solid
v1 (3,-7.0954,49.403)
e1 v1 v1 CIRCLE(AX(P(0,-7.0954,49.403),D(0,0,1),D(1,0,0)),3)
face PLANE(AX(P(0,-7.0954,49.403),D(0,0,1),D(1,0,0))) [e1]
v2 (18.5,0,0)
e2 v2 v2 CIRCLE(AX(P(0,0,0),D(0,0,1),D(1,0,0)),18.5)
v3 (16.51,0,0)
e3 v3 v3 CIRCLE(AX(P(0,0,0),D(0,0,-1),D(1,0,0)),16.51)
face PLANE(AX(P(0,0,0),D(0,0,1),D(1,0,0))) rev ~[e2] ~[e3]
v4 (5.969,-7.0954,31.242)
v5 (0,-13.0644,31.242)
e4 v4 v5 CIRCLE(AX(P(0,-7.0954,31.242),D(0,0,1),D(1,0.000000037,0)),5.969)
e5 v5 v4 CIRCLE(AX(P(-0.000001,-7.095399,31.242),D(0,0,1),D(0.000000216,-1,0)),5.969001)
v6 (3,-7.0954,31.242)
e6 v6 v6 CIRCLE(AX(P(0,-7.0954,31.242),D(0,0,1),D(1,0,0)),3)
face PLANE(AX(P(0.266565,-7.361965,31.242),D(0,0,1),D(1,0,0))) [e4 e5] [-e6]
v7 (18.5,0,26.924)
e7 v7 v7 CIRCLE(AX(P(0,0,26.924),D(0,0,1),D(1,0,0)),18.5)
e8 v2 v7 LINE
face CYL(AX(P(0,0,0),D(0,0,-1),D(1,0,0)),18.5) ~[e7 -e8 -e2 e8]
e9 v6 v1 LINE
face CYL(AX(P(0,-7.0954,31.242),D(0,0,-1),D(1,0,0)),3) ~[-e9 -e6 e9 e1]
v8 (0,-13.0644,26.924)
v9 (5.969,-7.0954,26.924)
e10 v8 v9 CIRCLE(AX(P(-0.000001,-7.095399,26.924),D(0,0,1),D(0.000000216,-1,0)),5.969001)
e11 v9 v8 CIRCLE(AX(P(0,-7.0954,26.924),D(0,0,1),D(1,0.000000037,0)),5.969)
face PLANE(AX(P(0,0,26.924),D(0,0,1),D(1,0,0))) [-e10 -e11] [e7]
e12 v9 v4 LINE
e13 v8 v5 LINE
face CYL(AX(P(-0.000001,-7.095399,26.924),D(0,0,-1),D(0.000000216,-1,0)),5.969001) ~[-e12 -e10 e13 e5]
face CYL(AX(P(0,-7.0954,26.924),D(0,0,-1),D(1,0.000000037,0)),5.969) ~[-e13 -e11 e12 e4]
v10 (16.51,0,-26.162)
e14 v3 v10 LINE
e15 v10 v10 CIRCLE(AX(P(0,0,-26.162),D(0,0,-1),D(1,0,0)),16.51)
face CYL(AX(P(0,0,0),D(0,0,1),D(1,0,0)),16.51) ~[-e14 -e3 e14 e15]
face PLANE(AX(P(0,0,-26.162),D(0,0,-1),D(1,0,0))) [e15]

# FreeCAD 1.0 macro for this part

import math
import FreeCAD as App
import Part
import Sketcher
Q = App.Units.Quantity

doc = App.newDocument("Part")
params = doc.addObject("Spreadsheet::Sheet", "Params")
for row, (alias, value) in enumerate([
    ("pad1_length", "1.06 in"),
    ("sketch2_diameter", "1.3 in"),
    ("pad2_length", "1.03 in"),
    ("sketch3_radius", "0.235 in"),
    ("pad3_length", "0.17 in"),
    ("pad4_length", "0.715 in"),
], start=1):
    params.set(f"A{row}", alias)
    params.set(f"B{row}", "=" + value)
    params.setAlias(f"B{row}", alias)

body = doc.addObject("PartDesign::Body", "Body")

sketch1 = body.newObject("Sketcher::SketchObject", "Sketch")
sketch1.AttachmentSupport = (doc.getObject("XY_Plane"), [""])
sketch1.MapMode = "FlatFace"
sketch1.addGeometry(Part.Circle(App.Vector(0, 0, 0), App.Vector(0, 0, 1), 18), False)
sketch1.addConstraint([
    Sketcher.Constraint("Coincident", 0, 3, -1, 1),
    Sketcher.Constraint("Diameter", 0, Q("37 mm")),
])
pad1 = body.newObject("PartDesign::Pad", "Pad")
pad1.Profile = sketch1
pad1.setExpression("Length", "Params.pad1_length")

sketch2 = body.newObject("Sketcher::SketchObject", "Sketch001")
sketch2.AttachmentSupport = (doc.getObject("XY_Plane"), [""])
sketch2.MapMode = "FlatFace"
sketch2.addGeometry(Part.Circle(App.Vector(0, 0, 0), App.Vector(0, 0, 1), 17), False)
sketch2.addConstraint([
    Sketcher.Constraint("Coincident", 0, 3, -1, 1),
    Sketcher.Constraint("Diameter", 0, Q("1.3 in")),
])
sketch2.setExpression("Constraints[1]", "Params.sketch2_diameter")
pad2 = body.newObject("PartDesign::Pad", "Pad001")
pad2.Profile = sketch2
pad2.setExpression("Length", "Params.pad2_length")
pad2.Reversed = True

sketch3 = body.newObject("Sketcher::SketchObject", "Sketch002")
sketch3.AttachmentSupport = (doc.getObject("XY_Plane"), [""])
sketch3.MapMode = "FlatFace"
sketch3.AttachmentOffset = App.Placement(App.Vector(0, 0, 1.06 * 25.4), App.Rotation())
sketch3.addGeometry([
    Part.ArcOfCircle(Part.Circle(App.Vector(0, -7, 0), App.Vector(0, 0, 1), 6), math.radians(0), math.radians(270)),
    Part.ArcOfCircle(Part.Circle(App.Vector(0, -7, 0), App.Vector(0, 0, 1), 6), math.radians(-90), math.radians(0)),
], False)
sketch3.addConstraint([
    Sketcher.Constraint("Tangent", 0, 1, 1, 2),
    Sketcher.Constraint("Coincident", 1, 1, 0, 2),
    Sketcher.Constraint("PointOnObject", 0, 3, -2),
    Sketcher.Constraint("PointOnObject", 1, 1, -2),
    Sketcher.Constraint("Horizontal", 1, 3, 0, 1),
    Sketcher.Constraint("Radius", 0, Q("0.235 in")),
    Sketcher.Constraint("DistanceY", 0, 3, -1, 1, Q("7.0954 mm")),
])
sketch3.setExpression("Constraints[5]", "Params.sketch3_radius")
pad3 = body.newObject("PartDesign::Pad", "Pad002")
pad3.Profile = sketch3
pad3.setExpression("Length", "Params.pad3_length")

sketch4 = body.newObject("Sketcher::SketchObject", "Sketch003")
sketch4.AttachmentSupport = (doc.getObject("XY_Plane"), [""])
sketch4.MapMode = "FlatFace"
sketch4.AttachmentOffset = App.Placement(App.Vector(0, 0, 1.23 * 25.4), App.Rotation())
sketch4.addGeometry(Part.Circle(App.Vector(0, -7.1, 0), App.Vector(0, 0, 1), 3), False)
sketch4.addConstraint([
    Sketcher.Constraint("PointOnObject", 0, 3, -2),
    Sketcher.Constraint("Diameter", 0, Q("6 mm")),
    Sketcher.Constraint("DistanceY", 0, 3, -1, 1, Q("7.0954 mm")),
])
pad4 = body.newObject("PartDesign::Pad", "Pad003")
pad4.Profile = sketch4
pad4.setExpression("Length", "Params.pad4_length")

doc.recompute()
